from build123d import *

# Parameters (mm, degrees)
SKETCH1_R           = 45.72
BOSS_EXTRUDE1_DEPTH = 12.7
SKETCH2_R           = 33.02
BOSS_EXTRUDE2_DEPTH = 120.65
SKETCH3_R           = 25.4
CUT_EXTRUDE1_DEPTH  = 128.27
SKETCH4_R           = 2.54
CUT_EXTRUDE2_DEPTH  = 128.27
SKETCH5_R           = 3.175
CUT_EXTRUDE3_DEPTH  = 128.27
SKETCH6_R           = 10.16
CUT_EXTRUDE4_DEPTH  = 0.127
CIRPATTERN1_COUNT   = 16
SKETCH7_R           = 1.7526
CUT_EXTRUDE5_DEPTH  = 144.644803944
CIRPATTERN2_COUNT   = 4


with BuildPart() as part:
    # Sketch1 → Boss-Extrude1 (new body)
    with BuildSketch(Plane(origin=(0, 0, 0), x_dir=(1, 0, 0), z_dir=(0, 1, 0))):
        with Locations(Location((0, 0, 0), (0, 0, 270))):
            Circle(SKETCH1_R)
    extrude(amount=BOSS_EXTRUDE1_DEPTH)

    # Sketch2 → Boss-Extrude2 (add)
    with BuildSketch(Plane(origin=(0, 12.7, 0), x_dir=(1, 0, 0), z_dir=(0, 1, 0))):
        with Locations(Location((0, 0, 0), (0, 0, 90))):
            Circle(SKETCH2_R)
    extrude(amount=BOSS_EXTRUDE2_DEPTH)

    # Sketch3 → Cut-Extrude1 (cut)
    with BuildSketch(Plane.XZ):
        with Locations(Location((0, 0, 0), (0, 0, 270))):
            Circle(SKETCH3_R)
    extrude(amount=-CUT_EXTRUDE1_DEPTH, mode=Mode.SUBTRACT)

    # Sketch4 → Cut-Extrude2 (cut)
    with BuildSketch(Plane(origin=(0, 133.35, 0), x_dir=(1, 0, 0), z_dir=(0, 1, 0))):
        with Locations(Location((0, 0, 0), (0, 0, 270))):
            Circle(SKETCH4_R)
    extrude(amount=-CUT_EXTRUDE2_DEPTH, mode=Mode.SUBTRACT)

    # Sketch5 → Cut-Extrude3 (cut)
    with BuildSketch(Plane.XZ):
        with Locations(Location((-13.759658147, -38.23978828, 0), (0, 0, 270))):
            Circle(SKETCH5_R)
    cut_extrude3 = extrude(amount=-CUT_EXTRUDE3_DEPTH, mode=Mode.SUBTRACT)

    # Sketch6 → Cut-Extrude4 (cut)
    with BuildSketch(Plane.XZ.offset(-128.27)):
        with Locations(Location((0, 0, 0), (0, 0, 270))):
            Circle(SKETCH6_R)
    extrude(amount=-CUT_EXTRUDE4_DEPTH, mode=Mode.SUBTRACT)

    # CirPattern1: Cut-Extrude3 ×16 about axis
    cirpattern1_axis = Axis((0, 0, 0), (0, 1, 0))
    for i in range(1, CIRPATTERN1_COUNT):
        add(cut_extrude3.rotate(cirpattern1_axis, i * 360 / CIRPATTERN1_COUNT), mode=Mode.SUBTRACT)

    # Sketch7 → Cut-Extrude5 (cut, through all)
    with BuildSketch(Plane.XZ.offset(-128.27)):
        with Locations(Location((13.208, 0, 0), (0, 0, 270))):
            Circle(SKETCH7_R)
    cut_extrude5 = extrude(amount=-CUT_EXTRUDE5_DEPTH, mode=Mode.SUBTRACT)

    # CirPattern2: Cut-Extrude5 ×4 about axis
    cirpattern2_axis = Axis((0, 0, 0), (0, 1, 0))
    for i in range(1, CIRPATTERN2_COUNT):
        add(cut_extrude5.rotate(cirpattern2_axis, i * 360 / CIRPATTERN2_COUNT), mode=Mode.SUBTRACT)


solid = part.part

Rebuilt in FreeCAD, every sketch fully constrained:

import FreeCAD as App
import Part
import Sketcher

V = App.Vector
Q = App.Units.Quantity

doc = App.newDocument("Part")
body = doc.addObject("PartDesign::Body", "Body")

# Sketch on XZ plane
sketch1 = doc.addObject("Sketcher::SketchObject", "Sketch")
body.addObject(sketch1)
sketch1.AttachmentSupport = (doc.XZ_Plane, [""])
sketch1.MapMode = "FlatFace"
sketch1.addGeometry(Part.Circle(V(0, 0, 0), V(0, 0, 1), 46), False)
sketch1.addConstraint([
    Sketcher.Constraint("Coincident", 0, 3, -1, 1),
    Sketcher.Constraint("Diameter", 0, Q("3.6 in")),
])
pad1 = doc.addObject("PartDesign::Pad", "Pad")
body.addObject(pad1)
pad1.Profile = sketch1
pad1.Length = Q("0.5 in")
pad1.Reversed = True

# Sketch on XZ plane
sketch2 = doc.addObject("Sketcher::SketchObject", "Sketch001")
body.addObject(sketch2)
sketch2.AttachmentSupport = (doc.XZ_Plane, [""])
sketch2.MapMode = "FlatFace"
sketch2.AttachmentOffset = App.Placement(V(0, 0, -0.5 * 25.4), App.Rotation())
sketch2.addGeometry(Part.Circle(V(0, 0, 0), V(0, 0, 1), 33), False)
sketch2.addConstraint([
    Sketcher.Constraint("Coincident", 0, 3, -1, 1),
    Sketcher.Constraint("Diameter", 0, Q("2.6 in")),
])
pad2 = doc.addObject("PartDesign::Pad", "Pad001")
body.addObject(pad2)
pad2.Profile = sketch2
pad2.Length = Q("4.75 in")
pad2.Reversed = True

# Sketch on XZ plane
sketch3 = doc.addObject("Sketcher::SketchObject", "Sketch002")
body.addObject(sketch3)
sketch3.AttachmentSupport = (doc.XZ_Plane, [""])
sketch3.MapMode = "FlatFace"
sketch3.addGeometry(Part.Circle(V(0, 0, 0), V(0, 0, 1), 25), False)
sketch3.addConstraint([
    Sketcher.Constraint("Coincident", 0, 3, -1, 1),
    Sketcher.Constraint("Diameter", 0, Q("2 in")),
])
pocket1 = doc.addObject("PartDesign::Pocket", "Pocket")
body.addObject(pocket1)
pocket1.Profile = sketch3
pocket1.Length = Q("5.05 in")

# Sketch on XZ plane
sketch4 = doc.addObject("Sketcher::SketchObject", "Sketch003")
body.addObject(sketch4)
sketch4.AttachmentSupport = (doc.XZ_Plane, [""])
sketch4.MapMode = "FlatFace"
sketch4.AttachmentOffset = App.Placement(V(0, 0, -5.25 * 25.4), App.Rotation())
sketch4.addGeometry(Part.Circle(V(0, 0, 0), V(0, 0, 1), 2.5), False)
sketch4.addConstraint([
    Sketcher.Constraint("Coincident", 0, 3, -1, 1),
    Sketcher.Constraint("Diameter", 0, Q("0.2 in")),
])
pocket2 = doc.addObject("PartDesign::Pocket", "Pocket001")
body.addObject(pocket2)
pocket2.Profile = sketch4
pocket2.Length = Q("5.05 in")
pocket2.Reversed = True

# Sketch on XZ plane
sketch5 = doc.addObject("Sketcher::SketchObject", "Sketch004")
body.addObject(sketch5)
sketch5.AttachmentSupport = (doc.XZ_Plane, [""])
sketch5.MapMode = "FlatFace"
sketch5.addGeometry(Part.Circle(V(-13.8, -38.2, 0), V(0, 0, 1), 3.2), False)
sketch5.addConstraint([
    Sketcher.Constraint("Diameter", 0, Q("0.25 in")),
    Sketcher.Constraint("DistanceX", 0, 3, -1, 1, 13.759658),
    Sketcher.Constraint("DistanceY", 0, 3, -1, 1, 38.239788),
])
pocket3 = doc.addObject("PartDesign::Pocket", "Pocket002")
body.addObject(pocket3)
pocket3.Profile = sketch5
pocket3.Length = Q("5.05 in")

# Sketch on XZ plane
sketch6 = doc.addObject("Sketcher::SketchObject", "Sketch005")
body.addObject(sketch6)
sketch6.AttachmentSupport = (doc.XZ_Plane, [""])
sketch6.MapMode = "FlatFace"
sketch6.AttachmentOffset = App.Placement(V(0, 0, -5.05 * 25.4), App.Rotation())
sketch6.addGeometry(Part.Circle(V(0, 0, 0), V(0, 0, 1), 10), False)
sketch6.addConstraint([
    Sketcher.Constraint("Coincident", 0, 3, -1, 1),
    Sketcher.Constraint("Diameter", 0, Q("0.8 in")),
])
pocket4 = doc.addObject("PartDesign::Pocket", "Pocket003")
body.addObject(pocket4)
pocket4.Profile = sketch6
pocket4.Length = Q("0.005 in")
doc.recompute()

polarpattern = doc.addObject("PartDesign::PolarPattern", "PolarPattern")
body.addObject(polarpattern)
polarpattern.Originals = [pocket3]
polarpattern.Axis = (doc.Y_Axis, [""])
polarpattern.Angle = 360
polarpattern.Occurrences = 16
body.Tip = polarpattern

# Sketch on XZ plane
sketch7 = doc.addObject("Sketcher::SketchObject", "Sketch006")
body.addObject(sketch7)
sketch7.AttachmentSupport = (doc.XZ_Plane, [""])
sketch7.MapMode = "FlatFace"
sketch7.AttachmentOffset = App.Placement(V(0, 0, -5.05 * 25.4), App.Rotation())
sketch7.addGeometry(Part.Circle(V(13.2, 0, 0), V(0, 0, 1), 1.8), False)
sketch7.addConstraint([
    Sketcher.Constraint("PointOnObject", 0, 3, -1),
    Sketcher.Constraint("Diameter", 0, Q("0.138 in")),
    Sketcher.Constraint("DistanceX", -1, 1, 0, 3, Q("0.52 in")),
])
pocket5 = doc.addObject("PartDesign::Pocket", "Pocket004")
body.addObject(pocket5)
pocket5.Profile = sketch7
pocket5.Type = "ThroughAll"
doc.recompute()

polarpattern2 = doc.addObject("PartDesign::PolarPattern", "PolarPattern001")
body.addObject(polarpattern2)
polarpattern2.Originals = [pocket5]
polarpattern2.Axis = (doc.Y_Axis, [""])
polarpattern2.Angle = 360
polarpattern2.Occurrences = 4
body.Tip = polarpattern2

doc.recompute()
